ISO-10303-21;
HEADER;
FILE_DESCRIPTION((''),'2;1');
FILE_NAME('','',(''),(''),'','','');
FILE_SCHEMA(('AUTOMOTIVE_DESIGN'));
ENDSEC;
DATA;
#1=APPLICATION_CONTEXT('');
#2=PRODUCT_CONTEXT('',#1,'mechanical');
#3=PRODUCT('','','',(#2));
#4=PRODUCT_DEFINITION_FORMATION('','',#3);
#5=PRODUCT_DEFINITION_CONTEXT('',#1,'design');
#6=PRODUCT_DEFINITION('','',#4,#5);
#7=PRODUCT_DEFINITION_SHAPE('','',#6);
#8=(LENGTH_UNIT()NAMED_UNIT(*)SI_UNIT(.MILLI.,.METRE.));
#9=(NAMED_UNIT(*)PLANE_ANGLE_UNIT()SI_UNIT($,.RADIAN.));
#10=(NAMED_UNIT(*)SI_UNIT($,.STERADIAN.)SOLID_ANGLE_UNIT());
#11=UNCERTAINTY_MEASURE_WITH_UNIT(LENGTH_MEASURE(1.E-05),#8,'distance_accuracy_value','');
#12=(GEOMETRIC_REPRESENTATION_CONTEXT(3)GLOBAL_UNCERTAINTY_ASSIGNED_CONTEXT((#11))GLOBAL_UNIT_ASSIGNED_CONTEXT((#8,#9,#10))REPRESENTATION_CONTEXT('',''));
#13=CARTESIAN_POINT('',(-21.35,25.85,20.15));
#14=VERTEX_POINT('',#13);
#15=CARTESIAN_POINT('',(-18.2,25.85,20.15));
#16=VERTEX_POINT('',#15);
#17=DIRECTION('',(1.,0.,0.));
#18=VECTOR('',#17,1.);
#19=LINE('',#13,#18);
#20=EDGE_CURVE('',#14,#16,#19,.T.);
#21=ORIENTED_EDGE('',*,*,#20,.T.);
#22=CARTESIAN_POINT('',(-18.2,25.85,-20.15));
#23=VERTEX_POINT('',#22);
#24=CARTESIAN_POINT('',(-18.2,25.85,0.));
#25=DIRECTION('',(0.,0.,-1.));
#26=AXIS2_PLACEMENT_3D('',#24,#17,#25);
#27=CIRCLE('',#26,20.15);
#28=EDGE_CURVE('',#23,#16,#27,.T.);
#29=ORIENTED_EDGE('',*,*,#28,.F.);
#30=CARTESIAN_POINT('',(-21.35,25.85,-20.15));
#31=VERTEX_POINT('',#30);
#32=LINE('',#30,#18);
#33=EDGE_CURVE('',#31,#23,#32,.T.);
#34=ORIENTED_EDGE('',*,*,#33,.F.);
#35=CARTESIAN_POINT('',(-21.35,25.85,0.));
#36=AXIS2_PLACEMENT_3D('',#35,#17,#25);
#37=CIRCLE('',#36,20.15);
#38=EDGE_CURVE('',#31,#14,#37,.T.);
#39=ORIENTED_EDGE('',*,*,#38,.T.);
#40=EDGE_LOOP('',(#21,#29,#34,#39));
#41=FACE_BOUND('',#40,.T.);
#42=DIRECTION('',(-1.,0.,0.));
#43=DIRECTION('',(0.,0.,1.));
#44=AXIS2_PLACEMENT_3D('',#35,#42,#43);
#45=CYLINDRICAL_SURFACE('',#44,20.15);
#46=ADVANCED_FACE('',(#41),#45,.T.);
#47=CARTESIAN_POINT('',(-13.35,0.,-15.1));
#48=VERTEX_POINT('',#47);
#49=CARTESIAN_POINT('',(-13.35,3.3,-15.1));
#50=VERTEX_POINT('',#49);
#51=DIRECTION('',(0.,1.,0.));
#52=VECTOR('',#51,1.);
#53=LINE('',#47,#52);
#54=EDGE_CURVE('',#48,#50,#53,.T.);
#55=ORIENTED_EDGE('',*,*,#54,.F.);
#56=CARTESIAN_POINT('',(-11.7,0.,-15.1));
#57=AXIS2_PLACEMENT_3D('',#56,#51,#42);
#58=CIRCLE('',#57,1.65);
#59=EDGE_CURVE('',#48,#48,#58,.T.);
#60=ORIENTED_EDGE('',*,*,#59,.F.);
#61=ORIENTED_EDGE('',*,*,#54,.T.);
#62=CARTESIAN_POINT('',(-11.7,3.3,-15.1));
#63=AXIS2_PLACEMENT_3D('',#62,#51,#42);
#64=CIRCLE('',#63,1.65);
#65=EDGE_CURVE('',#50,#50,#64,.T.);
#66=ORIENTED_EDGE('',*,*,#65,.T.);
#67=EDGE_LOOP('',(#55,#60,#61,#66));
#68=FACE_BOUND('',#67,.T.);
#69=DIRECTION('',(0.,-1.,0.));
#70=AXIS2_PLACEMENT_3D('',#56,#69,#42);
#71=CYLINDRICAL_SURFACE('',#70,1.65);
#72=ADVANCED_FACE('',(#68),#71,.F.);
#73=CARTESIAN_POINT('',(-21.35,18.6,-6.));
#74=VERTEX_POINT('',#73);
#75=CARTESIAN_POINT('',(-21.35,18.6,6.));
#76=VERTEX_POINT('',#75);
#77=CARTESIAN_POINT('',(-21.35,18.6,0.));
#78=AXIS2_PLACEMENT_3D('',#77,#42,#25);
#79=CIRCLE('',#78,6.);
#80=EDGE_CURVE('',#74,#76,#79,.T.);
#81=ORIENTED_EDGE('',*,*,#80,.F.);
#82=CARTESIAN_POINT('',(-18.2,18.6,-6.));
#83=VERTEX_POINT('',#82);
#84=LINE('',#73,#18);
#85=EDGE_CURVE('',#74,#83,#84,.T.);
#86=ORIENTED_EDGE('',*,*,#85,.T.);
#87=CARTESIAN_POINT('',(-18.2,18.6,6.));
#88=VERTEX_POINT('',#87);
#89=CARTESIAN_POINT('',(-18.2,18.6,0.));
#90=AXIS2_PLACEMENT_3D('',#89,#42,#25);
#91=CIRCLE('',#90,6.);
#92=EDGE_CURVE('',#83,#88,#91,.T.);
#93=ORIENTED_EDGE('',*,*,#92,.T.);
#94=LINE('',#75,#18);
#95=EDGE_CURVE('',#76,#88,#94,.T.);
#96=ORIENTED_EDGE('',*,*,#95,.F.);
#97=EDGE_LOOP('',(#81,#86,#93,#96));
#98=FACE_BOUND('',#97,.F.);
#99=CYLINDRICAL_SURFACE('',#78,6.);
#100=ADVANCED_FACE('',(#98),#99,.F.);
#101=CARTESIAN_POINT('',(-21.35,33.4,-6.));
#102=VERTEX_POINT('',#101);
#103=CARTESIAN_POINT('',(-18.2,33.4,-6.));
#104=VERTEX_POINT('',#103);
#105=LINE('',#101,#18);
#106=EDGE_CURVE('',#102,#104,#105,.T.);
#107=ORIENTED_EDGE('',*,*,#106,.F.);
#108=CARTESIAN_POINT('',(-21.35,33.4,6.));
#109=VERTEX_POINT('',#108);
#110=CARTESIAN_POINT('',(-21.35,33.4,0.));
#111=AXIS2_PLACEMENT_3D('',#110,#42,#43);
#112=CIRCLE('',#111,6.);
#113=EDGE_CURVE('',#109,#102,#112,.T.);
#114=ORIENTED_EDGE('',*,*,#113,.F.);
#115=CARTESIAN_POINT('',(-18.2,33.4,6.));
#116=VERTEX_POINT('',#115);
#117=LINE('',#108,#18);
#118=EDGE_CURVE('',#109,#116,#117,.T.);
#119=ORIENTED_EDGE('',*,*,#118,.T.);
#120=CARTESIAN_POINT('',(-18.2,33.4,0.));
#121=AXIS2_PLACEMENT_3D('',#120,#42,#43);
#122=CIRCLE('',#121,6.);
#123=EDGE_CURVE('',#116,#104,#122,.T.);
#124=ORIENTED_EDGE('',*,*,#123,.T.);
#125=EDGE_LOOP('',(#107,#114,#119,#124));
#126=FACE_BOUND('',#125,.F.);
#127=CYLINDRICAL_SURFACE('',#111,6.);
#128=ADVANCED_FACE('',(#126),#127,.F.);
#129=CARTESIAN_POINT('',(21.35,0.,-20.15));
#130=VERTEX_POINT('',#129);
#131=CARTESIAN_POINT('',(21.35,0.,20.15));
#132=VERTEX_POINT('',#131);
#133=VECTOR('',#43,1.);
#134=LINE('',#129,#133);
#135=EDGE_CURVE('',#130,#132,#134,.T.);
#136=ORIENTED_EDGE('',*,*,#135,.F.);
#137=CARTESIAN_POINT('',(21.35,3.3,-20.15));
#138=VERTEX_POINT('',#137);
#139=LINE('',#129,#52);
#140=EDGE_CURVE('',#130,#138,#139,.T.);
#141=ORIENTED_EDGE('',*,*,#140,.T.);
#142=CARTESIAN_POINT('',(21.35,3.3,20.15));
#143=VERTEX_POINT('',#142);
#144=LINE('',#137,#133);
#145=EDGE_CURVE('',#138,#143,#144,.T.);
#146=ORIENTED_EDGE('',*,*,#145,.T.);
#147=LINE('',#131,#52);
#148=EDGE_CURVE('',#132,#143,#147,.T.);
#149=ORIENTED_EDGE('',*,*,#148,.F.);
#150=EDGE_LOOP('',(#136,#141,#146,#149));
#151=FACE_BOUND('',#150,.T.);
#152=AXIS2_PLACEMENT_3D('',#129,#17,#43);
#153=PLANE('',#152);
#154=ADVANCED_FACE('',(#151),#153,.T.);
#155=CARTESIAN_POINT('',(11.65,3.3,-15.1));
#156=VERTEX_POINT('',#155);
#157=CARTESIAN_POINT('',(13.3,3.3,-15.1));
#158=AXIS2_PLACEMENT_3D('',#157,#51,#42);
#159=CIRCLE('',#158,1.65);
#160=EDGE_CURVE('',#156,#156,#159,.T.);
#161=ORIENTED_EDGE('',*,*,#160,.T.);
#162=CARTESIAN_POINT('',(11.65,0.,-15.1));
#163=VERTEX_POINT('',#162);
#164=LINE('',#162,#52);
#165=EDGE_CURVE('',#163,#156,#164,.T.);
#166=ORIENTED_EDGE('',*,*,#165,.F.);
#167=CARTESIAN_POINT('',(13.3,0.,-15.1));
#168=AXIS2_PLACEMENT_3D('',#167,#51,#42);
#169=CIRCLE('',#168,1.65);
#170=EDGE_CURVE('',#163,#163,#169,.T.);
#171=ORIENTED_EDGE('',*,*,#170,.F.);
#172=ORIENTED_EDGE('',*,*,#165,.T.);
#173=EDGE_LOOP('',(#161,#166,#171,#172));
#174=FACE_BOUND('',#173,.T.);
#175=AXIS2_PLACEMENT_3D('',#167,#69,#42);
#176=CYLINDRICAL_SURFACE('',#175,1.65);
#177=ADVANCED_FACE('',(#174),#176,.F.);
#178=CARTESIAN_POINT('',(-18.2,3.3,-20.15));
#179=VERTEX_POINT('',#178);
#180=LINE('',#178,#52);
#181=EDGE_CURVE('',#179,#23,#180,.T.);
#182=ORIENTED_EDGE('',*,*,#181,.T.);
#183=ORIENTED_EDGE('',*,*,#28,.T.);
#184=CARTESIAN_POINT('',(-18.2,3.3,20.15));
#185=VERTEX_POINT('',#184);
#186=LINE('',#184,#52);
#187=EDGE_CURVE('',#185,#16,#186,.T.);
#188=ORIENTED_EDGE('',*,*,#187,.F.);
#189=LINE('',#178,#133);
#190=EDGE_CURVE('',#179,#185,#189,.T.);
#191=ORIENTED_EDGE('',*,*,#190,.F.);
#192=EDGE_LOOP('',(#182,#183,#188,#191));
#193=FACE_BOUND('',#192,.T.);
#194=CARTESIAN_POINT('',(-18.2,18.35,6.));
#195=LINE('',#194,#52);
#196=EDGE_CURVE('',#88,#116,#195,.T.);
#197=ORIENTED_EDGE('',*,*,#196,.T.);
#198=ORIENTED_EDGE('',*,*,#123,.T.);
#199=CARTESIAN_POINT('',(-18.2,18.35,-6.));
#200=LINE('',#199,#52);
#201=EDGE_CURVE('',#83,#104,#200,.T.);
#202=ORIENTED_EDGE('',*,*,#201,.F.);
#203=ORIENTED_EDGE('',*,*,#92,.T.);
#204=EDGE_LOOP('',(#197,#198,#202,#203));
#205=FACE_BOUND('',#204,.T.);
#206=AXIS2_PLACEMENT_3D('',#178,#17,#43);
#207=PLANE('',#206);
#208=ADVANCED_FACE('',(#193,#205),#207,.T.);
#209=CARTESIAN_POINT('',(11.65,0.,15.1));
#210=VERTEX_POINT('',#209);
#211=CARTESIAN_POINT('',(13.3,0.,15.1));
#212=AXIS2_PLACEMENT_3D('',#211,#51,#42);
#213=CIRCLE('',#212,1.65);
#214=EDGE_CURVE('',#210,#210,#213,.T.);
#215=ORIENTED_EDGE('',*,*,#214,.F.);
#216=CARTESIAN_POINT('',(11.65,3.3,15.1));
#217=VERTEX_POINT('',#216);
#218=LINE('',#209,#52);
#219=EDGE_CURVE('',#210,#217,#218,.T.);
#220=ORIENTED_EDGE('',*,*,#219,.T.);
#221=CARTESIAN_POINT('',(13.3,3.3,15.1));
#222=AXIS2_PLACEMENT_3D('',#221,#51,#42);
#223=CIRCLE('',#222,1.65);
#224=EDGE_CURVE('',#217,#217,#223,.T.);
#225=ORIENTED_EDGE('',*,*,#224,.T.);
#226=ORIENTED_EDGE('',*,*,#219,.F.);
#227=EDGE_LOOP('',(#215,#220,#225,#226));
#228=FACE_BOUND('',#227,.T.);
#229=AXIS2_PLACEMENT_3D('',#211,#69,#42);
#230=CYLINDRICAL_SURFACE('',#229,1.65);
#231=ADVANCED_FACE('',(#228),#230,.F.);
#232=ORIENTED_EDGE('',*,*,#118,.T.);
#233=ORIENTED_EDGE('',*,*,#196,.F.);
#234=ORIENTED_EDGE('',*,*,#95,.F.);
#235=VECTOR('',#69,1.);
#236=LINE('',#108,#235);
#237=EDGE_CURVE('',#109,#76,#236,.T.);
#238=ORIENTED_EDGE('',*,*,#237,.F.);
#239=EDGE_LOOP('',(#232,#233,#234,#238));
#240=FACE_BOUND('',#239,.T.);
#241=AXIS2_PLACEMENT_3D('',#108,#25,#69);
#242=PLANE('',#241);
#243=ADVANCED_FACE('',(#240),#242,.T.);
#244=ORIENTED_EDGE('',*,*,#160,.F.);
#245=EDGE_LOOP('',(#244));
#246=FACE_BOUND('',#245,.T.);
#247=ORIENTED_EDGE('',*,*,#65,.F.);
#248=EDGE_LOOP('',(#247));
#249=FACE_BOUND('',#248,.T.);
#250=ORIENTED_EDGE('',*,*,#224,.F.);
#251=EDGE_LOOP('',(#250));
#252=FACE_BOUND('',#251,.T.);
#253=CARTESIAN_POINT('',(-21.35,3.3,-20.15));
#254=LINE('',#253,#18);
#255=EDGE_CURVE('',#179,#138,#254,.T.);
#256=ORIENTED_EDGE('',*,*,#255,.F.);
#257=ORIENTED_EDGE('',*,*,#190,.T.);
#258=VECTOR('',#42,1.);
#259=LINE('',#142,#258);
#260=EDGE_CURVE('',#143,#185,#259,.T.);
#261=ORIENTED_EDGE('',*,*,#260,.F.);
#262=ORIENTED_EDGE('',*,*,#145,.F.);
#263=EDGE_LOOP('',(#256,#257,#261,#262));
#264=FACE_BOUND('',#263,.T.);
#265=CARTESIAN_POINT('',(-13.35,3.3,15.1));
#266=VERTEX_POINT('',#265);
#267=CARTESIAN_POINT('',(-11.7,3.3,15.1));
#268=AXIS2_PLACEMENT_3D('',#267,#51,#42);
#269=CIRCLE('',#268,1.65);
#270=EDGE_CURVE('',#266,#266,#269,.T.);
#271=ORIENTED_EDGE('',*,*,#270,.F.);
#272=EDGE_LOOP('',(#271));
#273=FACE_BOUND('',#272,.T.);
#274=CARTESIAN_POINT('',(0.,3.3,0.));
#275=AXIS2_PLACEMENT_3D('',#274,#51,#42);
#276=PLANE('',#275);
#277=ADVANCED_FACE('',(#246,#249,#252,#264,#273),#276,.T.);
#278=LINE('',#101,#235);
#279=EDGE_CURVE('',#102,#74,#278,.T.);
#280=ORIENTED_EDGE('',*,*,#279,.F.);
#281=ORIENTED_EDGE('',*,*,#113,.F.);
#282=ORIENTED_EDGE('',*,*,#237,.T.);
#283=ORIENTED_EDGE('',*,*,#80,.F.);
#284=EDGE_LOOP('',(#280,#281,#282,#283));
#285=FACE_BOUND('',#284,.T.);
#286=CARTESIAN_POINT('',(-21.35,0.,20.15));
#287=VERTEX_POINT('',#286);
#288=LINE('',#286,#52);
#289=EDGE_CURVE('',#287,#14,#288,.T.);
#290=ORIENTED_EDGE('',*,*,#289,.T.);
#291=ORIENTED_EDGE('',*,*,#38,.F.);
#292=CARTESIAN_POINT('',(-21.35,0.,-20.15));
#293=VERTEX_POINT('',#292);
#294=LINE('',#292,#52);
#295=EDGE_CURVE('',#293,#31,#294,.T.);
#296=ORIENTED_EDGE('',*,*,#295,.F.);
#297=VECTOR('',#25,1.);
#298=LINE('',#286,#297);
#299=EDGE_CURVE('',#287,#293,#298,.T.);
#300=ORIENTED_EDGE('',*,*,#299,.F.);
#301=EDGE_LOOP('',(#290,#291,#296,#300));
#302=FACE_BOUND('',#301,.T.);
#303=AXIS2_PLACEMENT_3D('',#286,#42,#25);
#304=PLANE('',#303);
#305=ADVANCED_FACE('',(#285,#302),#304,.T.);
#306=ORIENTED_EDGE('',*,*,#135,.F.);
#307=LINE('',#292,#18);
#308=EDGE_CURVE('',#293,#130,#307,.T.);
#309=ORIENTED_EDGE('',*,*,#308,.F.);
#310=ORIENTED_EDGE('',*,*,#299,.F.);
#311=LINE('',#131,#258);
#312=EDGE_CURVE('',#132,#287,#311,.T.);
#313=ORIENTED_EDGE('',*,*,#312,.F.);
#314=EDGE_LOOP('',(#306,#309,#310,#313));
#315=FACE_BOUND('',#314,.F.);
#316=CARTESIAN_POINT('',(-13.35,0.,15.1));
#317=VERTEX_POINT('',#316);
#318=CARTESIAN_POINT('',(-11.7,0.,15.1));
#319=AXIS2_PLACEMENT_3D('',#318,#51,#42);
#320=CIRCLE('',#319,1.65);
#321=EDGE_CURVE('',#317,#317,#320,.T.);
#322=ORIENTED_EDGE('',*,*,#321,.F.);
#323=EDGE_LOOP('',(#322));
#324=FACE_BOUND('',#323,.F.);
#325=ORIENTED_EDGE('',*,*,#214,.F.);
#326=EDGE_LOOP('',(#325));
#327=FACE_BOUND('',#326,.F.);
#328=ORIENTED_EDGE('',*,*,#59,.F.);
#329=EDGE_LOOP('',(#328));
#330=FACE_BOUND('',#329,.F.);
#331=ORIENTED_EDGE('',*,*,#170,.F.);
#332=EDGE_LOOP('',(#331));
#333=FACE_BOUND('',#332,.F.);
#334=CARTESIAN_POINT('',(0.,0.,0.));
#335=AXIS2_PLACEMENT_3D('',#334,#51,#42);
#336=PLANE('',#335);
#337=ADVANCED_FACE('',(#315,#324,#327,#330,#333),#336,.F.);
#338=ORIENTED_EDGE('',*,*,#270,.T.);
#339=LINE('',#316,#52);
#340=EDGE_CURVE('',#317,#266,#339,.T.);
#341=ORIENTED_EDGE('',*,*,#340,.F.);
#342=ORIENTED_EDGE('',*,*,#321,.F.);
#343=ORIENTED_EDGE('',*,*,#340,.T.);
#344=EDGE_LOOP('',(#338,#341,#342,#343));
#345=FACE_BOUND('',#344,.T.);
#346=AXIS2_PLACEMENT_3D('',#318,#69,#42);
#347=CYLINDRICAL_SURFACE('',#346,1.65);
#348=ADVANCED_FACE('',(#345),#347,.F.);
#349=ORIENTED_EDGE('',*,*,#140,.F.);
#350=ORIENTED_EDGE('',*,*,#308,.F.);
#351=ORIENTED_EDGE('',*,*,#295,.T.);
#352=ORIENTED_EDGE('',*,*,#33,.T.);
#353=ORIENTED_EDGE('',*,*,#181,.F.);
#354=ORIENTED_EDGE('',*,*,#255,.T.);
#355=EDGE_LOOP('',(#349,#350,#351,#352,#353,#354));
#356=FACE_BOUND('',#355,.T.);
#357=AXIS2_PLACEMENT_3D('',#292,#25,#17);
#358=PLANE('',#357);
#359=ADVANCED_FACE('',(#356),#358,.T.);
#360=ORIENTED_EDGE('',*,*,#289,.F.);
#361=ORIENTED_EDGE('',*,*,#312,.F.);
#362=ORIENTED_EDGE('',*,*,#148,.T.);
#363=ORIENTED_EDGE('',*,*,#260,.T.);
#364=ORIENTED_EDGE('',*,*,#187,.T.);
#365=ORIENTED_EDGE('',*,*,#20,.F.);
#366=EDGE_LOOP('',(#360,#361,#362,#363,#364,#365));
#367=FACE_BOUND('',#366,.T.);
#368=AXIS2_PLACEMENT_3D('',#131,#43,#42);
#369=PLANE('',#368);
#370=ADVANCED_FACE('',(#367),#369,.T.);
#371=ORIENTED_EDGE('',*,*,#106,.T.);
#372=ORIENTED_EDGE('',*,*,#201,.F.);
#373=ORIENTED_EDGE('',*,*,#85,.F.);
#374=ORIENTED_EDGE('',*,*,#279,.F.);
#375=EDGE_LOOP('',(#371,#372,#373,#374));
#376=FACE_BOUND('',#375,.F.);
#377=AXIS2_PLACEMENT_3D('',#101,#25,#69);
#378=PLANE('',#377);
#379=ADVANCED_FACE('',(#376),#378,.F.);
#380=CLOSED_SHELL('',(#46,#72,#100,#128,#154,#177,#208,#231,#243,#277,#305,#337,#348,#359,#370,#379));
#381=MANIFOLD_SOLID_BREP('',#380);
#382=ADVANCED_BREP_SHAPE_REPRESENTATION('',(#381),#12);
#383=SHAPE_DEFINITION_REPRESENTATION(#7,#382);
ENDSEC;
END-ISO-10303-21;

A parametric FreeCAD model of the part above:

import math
import FreeCAD as App
import Part
import Sketcher
from FreeCAD import Vector


def add_polygon(sketch, points):
    """Adds a closed chain of lines whose ends are joined by coincident constraints."""
    first, n = sketch.GeometryCount, len(points)
    for a, b in zip(points, points[1:] + points[:1]):
        sketch.addGeometry(Part.LineSegment(App.Vector(*a, 0), App.Vector(*b, 0)), False)
    for i in range(n):
        sketch.addConstraint(Sketcher.Constraint("Coincident", first + i, 2, first + (i + 1) % n, 1))

doc = App.newDocument("Part")
params = doc.addObject("Spreadsheet::Sheet", "Params")
for row, (alias, value) in enumerate([
    ("sketch1_diameter", "3.3 mm"),
    ("sketch1_width", "42.7 mm"),
    ("sketch1_height", "40.3 mm"),
    ("pad1_length", "3.3 mm"),
    ("sketch2_width", "3.15 mm"),
    ("sketch2_height", "40.3 mm"),
    ("pad2_length", "42.7 mm"),
    ("sketch3_radius", "20.15 mm"),
    ("sketch4_radius", "6 mm"),
    ("sketch4_width", "14.8 mm"),
], start=1):
    params.set(f"A{row}", alias)
    params.set(f"B{row}", "=" + value)
    params.setAlias(f"B{row}", alias)

body = doc.addObject("PartDesign::Body", "Body")

# Sketch on XZ plane
sketch1 = body.newObject("Sketcher::SketchObject", "Sketch")
sketch1.AttachmentSupport = (doc.getObject("XZ_Plane"), [""])
sketch1.MapMode = "FlatFace"
add_polygon(sketch1, [(21.4, -20.1), (-21.4, -20.1), (-21.4, 20.1), (21.4, 20.1)])  # lines 0-3
sketch1.addGeometry(Part.Circle(Vector(13.3, -15.1, 0), Vector(0, 0, 1), 1.6), False)  # 4
sketch1.addGeometry(Part.Circle(Vector(-11.7, -15.1, 0), Vector(0, 0, 1), 1.6), False)  # 5
sketch1.addGeometry(Part.Circle(Vector(13.3, 15.1, 0), Vector(0, 0, 1), 1.6), False)  # 6
sketch1.addGeometry(Part.Circle(Vector(-11.7, 15.1, 0), Vector(0, 0, 1), 1.6), False)  # 7
sketch1.addConstraint([
    Sketcher.Constraint("Horizontal", 0),
    Sketcher.Constraint("Vertical", 1),
    Sketcher.Constraint("Horizontal", 2),
    Sketcher.Constraint("Vertical", 3),
    Sketcher.Constraint("Equal", 4, 5),
    Sketcher.Constraint("Equal", 5, 6),
    Sketcher.Constraint("Equal", 6, 7),
    Sketcher.Constraint("Symmetric", 0, 2, 2, 2, -1, 1),
    Sketcher.Constraint("Symmetric", 4, 3, 6, 3, -1),
    Sketcher.Constraint("Symmetric", 5, 3, 7, 3, -1),
    Sketcher.Constraint("Horizontal", 4, 3, 5, 3),
    Sketcher.Constraint("Diameter", 4, 3.3),
    Sketcher.Constraint("DistanceX", 0, 2, 0, 1, 42.7),
    Sketcher.Constraint("DistanceY", 1, 1, 1, 2, 40.3),
    Sketcher.Constraint("DistanceX", 5, 3, 4, 3, 25.0),
    Sketcher.Constraint("DistanceY", 4, 3, 6, 3, 30.2),
    Sketcher.Constraint("DistanceX", -1, 1, 4, 3, 13.3),
])
sketch1.setExpression("Constraints[15]", "Params.sketch1_diameter")
sketch1.setExpression("Constraints[16]", "Params.sketch1_width")
sketch1.setExpression("Constraints[17]", "Params.sketch1_height")
pad1 = body.newObject("PartDesign::Pad", "Pad")
pad1.Profile = sketch1
pad1.setExpression("Length", "Params.pad1_length")
pad1.Reversed = True

# Sketch on XZ plane
sketch2 = body.newObject("Sketcher::SketchObject", "Sketch001")
sketch2.AttachmentSupport = (doc.getObject("XZ_Plane"), [""])
sketch2.MapMode = "FlatFace"
sketch2.AttachmentOffset = App.Placement(Vector(0, 0, -3.3), App.Rotation())
add_polygon(sketch2, [(-18.2, -20.1), (-21.4, -20.1), (-21.4, 20.1), (-18.2, 20.1)])  # lines 0-3
sketch2.addConstraint([
    Sketcher.Constraint("Horizontal", 0),
    Sketcher.Constraint("Vertical", 1),
    Sketcher.Constraint("Horizontal", 2),
    Sketcher.Constraint("Vertical", 3),
    Sketcher.Constraint("DistanceX", 0, 2, 0, 1, 3.15),
    Sketcher.Constraint("DistanceY", 1, 1, 1, 2, 40.3),
    Sketcher.Constraint("DistanceX", 2, 2, -1, 1, 18.2),
    Sketcher.Constraint("DistanceY", 0, 2, -1, 1, 20.15),
])
sketch2.setExpression("Constraints[8]", "Params.sketch2_width")
sketch2.setExpression("Constraints[9]", "Params.sketch2_height")
pad2 = body.newObject("PartDesign::Pad", "Pad001")
pad2.Profile = sketch2
pad2.setExpression("Length", "Params.pad2_length")
pad2.Reversed = True

# Sketch on YZ plane
sketch3 = body.newObject("Sketcher::SketchObject", "Sketch002")
sketch3.AttachmentSupport = (doc.getObject("YZ_Plane"), [""])
sketch3.MapMode = "FlatFace"
sketch3.AttachmentOffset = App.Placement(Vector(0, 0, -21.35), App.Rotation())
sketch3.addGeometry([
    Part.ArcOfCircle(Part.Circle(Vector(26, 0, 0), Vector(0, 0, 1), 20), math.radians(0), math.radians(90)),  # 0
    Part.LineSegment(Vector(26, 20, 0), Vector(46, 20, 0)),  # 1
    Part.LineSegment(Vector(46, 20, 0), Vector(46, 0, 0)),  # 2
    Part.ArcOfCircle(Part.Circle(Vector(26, 0, 0), Vector(0, 0, 1), 20), math.radians(-90), math.radians(0)),  # 3
    Part.LineSegment(Vector(46, 0, 0), Vector(46, -20, 0)),  # 4
    Part.LineSegment(Vector(46, -20, 0), Vector(26, -20, 0)),  # 5
], False)
sketch3.addConstraint([
    Sketcher.Constraint("Tangent", 0, 2, 1, 1),
    Sketcher.Constraint("Coincident", 1, 2, 2, 1),
    Sketcher.Constraint("Tangent", 2, 2, 0, 1),
    Sketcher.Constraint("Tangent", 3, 2, 4, 1),
    Sketcher.Constraint("Coincident", 4, 2, 5, 1),
    Sketcher.Constraint("Tangent", 5, 2, 3, 1),
    Sketcher.Constraint("Horizontal", 1),
    Sketcher.Constraint("Vertical", 2),
    Sketcher.Constraint("Vertical", 4),
    Sketcher.Constraint("Horizontal", 5),
    Sketcher.Constraint("Coincident", 3, 3, 0, 3),
    Sketcher.Constraint("Equal", 0, 3),
    Sketcher.Constraint("PointOnObject", 0, 3, -1),
    Sketcher.Constraint("Radius", 0, 20.15),
    Sketcher.Constraint("DistanceX", -1, 1, 1, 2, 46.0),
])
sketch3.setExpression("Constraints[13]", "Params.sketch3_radius")
pocket1 = body.newObject("PartDesign::Pocket", "Pocket")
pocket1.Profile = sketch3
pocket1.Type = "ThroughAll"
pocket1.Reversed = True

# Sketch on YZ plane
sketch4 = body.newObject("Sketcher::SketchObject", "Sketch003")
sketch4.AttachmentSupport = (doc.getObject("YZ_Plane"), [""])
sketch4.MapMode = "FlatFace"
sketch4.AttachmentOffset = App.Placement(Vector(0, 0, -21.35), App.Rotation())
sketch4.addGeometry([
    Part.LineSegment(Vector(19, 6, 0), Vector(33, 6, 0)),
    Part.ArcOfCircle(Part.Circle(Vector(33, 0, 0), Vector(0, 0, 1), 6), math.radians(-90), math.radians(90)),
    Part.LineSegment(Vector(33, -6, 0), Vector(19, -6, 0)),
    Part.ArcOfCircle(Part.Circle(Vector(19, 0, 0), Vector(0, 0, 1), 6), math.radians(90), math.radians(270)),
], False)
sketch4.addConstraint([
    Sketcher.Constraint("Tangent", 0, 2, 1, 2),
    Sketcher.Constraint("Tangent", 1, 1, 2, 1),
    Sketcher.Constraint("Tangent", 2, 2, 3, 2),
    Sketcher.Constraint("Tangent", 3, 1, 0, 1),
    Sketcher.Constraint("Horizontal", 0),
    Sketcher.Constraint("Horizontal", 2),
    Sketcher.Constraint("PointOnObject", 1, 3, -1),
    Sketcher.Constraint("Radius", 1, 6.0),
    Sketcher.Constraint("DistanceX", 0, 1, 0, 2, 14.8),
    Sketcher.Constraint("DistanceX", -1, 1, 1, 3, 33.4),
])
sketch4.setExpression("Constraints[7]", "Params.sketch4_radius")
sketch4.setExpression("Constraints[8]", "Params.sketch4_width")
pocket2 = body.newObject("PartDesign::Pocket", "Pocket001")
pocket2.Profile = sketch4
pocket2.Type = "ThroughAll"
pocket2.Reversed = True

doc.recompute()
